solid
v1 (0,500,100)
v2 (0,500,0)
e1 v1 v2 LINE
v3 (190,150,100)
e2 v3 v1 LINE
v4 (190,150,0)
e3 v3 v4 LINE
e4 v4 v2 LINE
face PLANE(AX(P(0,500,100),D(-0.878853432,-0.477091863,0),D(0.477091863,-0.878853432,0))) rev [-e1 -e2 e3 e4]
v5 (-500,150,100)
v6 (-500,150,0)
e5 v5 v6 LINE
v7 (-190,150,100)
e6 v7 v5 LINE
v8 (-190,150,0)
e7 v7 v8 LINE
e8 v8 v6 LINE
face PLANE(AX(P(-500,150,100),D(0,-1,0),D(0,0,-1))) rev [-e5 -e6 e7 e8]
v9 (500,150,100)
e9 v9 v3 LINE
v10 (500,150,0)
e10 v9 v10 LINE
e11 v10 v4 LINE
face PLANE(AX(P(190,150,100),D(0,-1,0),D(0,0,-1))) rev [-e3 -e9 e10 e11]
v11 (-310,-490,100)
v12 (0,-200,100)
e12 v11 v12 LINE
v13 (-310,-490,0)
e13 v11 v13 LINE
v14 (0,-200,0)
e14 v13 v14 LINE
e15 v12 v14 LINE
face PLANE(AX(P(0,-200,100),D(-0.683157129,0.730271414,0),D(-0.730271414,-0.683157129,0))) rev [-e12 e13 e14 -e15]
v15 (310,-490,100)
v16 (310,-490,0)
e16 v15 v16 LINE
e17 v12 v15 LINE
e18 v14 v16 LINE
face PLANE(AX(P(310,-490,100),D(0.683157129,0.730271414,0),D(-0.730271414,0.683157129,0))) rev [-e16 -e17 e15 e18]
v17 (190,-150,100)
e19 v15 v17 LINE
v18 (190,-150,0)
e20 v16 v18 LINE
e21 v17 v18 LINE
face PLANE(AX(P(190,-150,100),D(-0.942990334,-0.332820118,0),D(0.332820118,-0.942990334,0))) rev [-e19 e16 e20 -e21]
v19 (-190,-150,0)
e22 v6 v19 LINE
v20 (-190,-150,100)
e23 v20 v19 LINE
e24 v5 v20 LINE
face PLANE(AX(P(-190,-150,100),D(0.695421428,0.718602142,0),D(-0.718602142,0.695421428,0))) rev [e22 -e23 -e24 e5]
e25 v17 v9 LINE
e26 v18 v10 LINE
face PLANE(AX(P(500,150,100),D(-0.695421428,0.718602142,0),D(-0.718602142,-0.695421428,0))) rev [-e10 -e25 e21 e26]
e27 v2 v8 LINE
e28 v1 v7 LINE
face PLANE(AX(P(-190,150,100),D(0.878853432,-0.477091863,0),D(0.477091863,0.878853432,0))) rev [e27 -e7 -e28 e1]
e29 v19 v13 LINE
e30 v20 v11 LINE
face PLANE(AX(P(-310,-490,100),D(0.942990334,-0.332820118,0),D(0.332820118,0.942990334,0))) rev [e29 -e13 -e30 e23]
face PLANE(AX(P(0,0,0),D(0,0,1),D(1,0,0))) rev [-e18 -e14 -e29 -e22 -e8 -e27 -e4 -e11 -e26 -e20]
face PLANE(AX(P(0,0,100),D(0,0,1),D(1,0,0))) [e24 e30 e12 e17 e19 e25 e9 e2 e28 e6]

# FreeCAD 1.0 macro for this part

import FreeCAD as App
import Part
import Sketcher

doc = App.newDocument("Part")
body = doc.addObject("PartDesign::Body", "Body")

# Sketch on XY plane
sketch1 = body.newObject("Sketcher::SketchObject", "Sketch")
sketch1.AttachmentSupport = (doc.getObject("XY_Plane"), [""])
sketch1.MapMode = "FlatFace"
sketch1.addGeometry(Part.LineSegment(App.Vector(190, 150, 0), App.Vector(0, 500, 0)), False)
sketch1.addGeometry(Part.LineSegment(App.Vector(0, 500, 0), App.Vector(-190, 150, 0)), False)
sketch1.addGeometry(Part.LineSegment(App.Vector(-190, 150, 0), App.Vector(-500, 150, 0)), False)
sketch1.addGeometry(Part.LineSegment(App.Vector(-500, 150, 0), App.Vector(-190, -150, 0)), False)
sketch1.addGeometry(Part.LineSegment(App.Vector(-190, -150, 0), App.Vector(-310, -490, 0)), False)
sketch1.addGeometry(Part.LineSegment(App.Vector(-310, -490, 0), App.Vector(0, -200, 0)), False)
sketch1.addGeometry(Part.LineSegment(App.Vector(0, -200, 0), App.Vector(310, -490, 0)), False)
sketch1.addGeometry(Part.LineSegment(App.Vector(310, -490, 0), App.Vector(190, -150, 0)), False)
sketch1.addGeometry(Part.LineSegment(App.Vector(190, -150, 0), App.Vector(500, 150, 0)), False)
sketch1.addGeometry(Part.LineSegment(App.Vector(500, 150, 0), App.Vector(190, 150, 0)), False)
sketch1.addConstraint(Sketcher.Constraint("Coincident", 0, 2, 1, 1))
sketch1.addConstraint(Sketcher.Constraint("Coincident", 1, 2, 2, 1))
sketch1.addConstraint(Sketcher.Constraint("Coincident", 2, 2, 3, 1))
sketch1.addConstraint(Sketcher.Constraint("Coincident", 3, 2, 4, 1))
sketch1.addConstraint(Sketcher.Constraint("Coincident", 4, 2, 5, 1))
sketch1.addConstraint(Sketcher.Constraint("Coincident", 5, 2, 6, 1))
sketch1.addConstraint(Sketcher.Constraint("Coincident", 6, 2, 7, 1))
sketch1.addConstraint(Sketcher.Constraint("Coincident", 7, 2, 8, 1))
sketch1.addConstraint(Sketcher.Constraint("Coincident", 8, 2, 9, 1))
sketch1.addConstraint(Sketcher.Constraint("Coincident", 9, 2, 0, 1))
sketch1.addConstraint(Sketcher.Constraint("Horizontal", 2))
sketch1.addConstraint(Sketcher.Constraint("Horizontal", 9))
sketch1.addConstraint(Sketcher.Constraint("Symmetric", 1, 2, 7, 2, -1, 1))
sketch1.addConstraint(Sketcher.Constraint("Symmetric", 3, 2, 9, 2, -1, 1))
sketch1.addConstraint(Sketcher.Constraint("Symmetric", 4, 2, 6, 2, -2))
sketch1.addConstraint(Sketcher.Constraint("Symmetric", 3, 2, 7, 2, -2))
sketch1.addConstraint(Sketcher.Constraint("PointOnObject", 0, 2, -2))
sketch1.addConstraint(Sketcher.Constraint("PointOnObject", 5, 2, -2))
sketch1.addConstraint(Sketcher.Constraint("Equal", 2, 9))
sketch1.addConstraint(Sketcher.Constraint("DistanceX", 2, 2, 2, 1, 310.0))
sketch1.addConstraint(Sketcher.Constraint("DistanceY", -1, 1, 0, 2, 500.0))
sketch1.addConstraint(Sketcher.Constraint("DistanceX", 1, 2, -1, 1, 190.0))
sketch1.addConstraint(Sketcher.Constraint("DistanceY", -1, 1, 1, 2, 150.0))
sketch1.addConstraint(Sketcher.Constraint("DistanceX", 4, 2, -1, 1, 310.0))
sketch1.addConstraint(Sketcher.Constraint("DistanceY", 4, 2, -1, 1, 490.0))
sketch1.addConstraint(Sketcher.Constraint("DistanceY", 5, 2, -1, 1, 200.0))
pad1 = body.newObject("PartDesign::Pad", "Pad")
pad1.Profile = sketch1
pad1.Length = 100

doc.recompute()
